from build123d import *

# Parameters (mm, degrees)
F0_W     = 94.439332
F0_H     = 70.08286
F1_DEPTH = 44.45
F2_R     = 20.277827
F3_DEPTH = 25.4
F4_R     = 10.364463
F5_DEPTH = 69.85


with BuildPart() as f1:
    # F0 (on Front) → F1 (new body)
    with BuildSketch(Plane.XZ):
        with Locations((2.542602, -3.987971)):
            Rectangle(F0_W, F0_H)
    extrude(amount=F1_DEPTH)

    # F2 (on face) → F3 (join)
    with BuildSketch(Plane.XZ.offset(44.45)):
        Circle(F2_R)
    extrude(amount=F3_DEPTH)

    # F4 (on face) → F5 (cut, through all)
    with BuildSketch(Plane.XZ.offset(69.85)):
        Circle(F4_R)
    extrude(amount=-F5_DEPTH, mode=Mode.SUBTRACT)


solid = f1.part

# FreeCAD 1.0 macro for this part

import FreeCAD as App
import Part
import Sketcher
from FreeCAD import Vector
Q = App.Units.Quantity

doc = App.newDocument("Part")
body = doc.addObject("PartDesign::Body", "Body")

# Sketch on XZ plane
sketch1 = body.newObject("Sketcher::SketchObject", "Sketch")
sketch1.AttachmentSupport = (doc.getObject("XZ_Plane"), [""])
sketch1.MapMode = "FlatFace"
sketch1.addGeometry([
    Part.LineSegment(Vector(-44.677064, 31.053459, 0), Vector(-44.677064, -39.029401, 0)),
    Part.LineSegment(Vector(-44.677064, -39.029401, 0), Vector(49.762268, -39.029401, 0)),
    Part.LineSegment(Vector(49.762268, -39.029401, 0), Vector(49.762268, 31.053459, 0)),
    Part.LineSegment(Vector(49.762268, 31.053459, 0), Vector(-44.677064, 31.053459, 0)),
], False)
sketch1.addConstraint([
    Sketcher.Constraint("Coincident", 0, 2, 1, 1),
    Sketcher.Constraint("Coincident", 1, 2, 2, 1),
    Sketcher.Constraint("Coincident", 2, 2, 3, 1),
    Sketcher.Constraint("Coincident", 3, 2, 0, 1),
    Sketcher.Constraint("Vertical", 0),
    Sketcher.Constraint("Horizontal", 1),
    Sketcher.Constraint("Vertical", 2),
    Sketcher.Constraint("Horizontal", 3),
    Sketcher.Constraint("DistanceY", 0, 2, 0, 1, Q("70.08286 mm")),
    Sketcher.Constraint("DistanceY", 0, 2, -1, 1, Q("39.029401 mm")),
    Sketcher.Constraint("DistanceX", 1, 1, 1, 2, Q("94.439332 mm")),
    Sketcher.Constraint("DistanceX", 0, 2, -1, 1, Q("44.677064 mm")),
])
pad1 = body.newObject("PartDesign::Pad", "Pad")
pad1.Profile = sketch1
pad1.Length = Q("1.75 in")

# Sketch on XZ plane
sketch2 = body.newObject("Sketcher::SketchObject", "Sketch001")
sketch2.AttachmentSupport = (doc.getObject("XZ_Plane"), [""])
sketch2.MapMode = "FlatFace"
sketch2.AttachmentOffset = App.Placement(Vector(0, 0, 1.75 * 25.4), App.Rotation())
sketch2.addGeometry(Part.Circle(Vector(0, 0, 0), Vector(0, 0, 1), 20.277827), False)
sketch2.addConstraint([
    Sketcher.Constraint("Coincident", 0, 3, -1, 1),
    Sketcher.Constraint("Diameter", 0, Q("40.555654 mm")),
])
pad2 = body.newObject("PartDesign::Pad", "Pad001")
pad2.Profile = sketch2
pad2.Length = Q("1 in")

# Sketch on XZ plane
sketch3 = body.newObject("Sketcher::SketchObject", "Sketch002")
sketch3.AttachmentSupport = (doc.getObject("XZ_Plane"), [""])
sketch3.MapMode = "FlatFace"
sketch3.AttachmentOffset = App.Placement(Vector(0, 0, 2.75 * 25.4), App.Rotation())
sketch3.addGeometry(Part.Circle(Vector(0, 0, 0), Vector(0, 0, 1), 10.364463), False)
sketch3.addConstraint([
    Sketcher.Constraint("Coincident", 0, 3, -1, 1),
    Sketcher.Constraint("Diameter", 0, Q("20.728926 mm")),
])
pocket1 = body.newObject("PartDesign::Pocket", "Pocket")
pocket1.Profile = sketch3
pocket1.Type = "ThroughAll"

doc.recompute()
